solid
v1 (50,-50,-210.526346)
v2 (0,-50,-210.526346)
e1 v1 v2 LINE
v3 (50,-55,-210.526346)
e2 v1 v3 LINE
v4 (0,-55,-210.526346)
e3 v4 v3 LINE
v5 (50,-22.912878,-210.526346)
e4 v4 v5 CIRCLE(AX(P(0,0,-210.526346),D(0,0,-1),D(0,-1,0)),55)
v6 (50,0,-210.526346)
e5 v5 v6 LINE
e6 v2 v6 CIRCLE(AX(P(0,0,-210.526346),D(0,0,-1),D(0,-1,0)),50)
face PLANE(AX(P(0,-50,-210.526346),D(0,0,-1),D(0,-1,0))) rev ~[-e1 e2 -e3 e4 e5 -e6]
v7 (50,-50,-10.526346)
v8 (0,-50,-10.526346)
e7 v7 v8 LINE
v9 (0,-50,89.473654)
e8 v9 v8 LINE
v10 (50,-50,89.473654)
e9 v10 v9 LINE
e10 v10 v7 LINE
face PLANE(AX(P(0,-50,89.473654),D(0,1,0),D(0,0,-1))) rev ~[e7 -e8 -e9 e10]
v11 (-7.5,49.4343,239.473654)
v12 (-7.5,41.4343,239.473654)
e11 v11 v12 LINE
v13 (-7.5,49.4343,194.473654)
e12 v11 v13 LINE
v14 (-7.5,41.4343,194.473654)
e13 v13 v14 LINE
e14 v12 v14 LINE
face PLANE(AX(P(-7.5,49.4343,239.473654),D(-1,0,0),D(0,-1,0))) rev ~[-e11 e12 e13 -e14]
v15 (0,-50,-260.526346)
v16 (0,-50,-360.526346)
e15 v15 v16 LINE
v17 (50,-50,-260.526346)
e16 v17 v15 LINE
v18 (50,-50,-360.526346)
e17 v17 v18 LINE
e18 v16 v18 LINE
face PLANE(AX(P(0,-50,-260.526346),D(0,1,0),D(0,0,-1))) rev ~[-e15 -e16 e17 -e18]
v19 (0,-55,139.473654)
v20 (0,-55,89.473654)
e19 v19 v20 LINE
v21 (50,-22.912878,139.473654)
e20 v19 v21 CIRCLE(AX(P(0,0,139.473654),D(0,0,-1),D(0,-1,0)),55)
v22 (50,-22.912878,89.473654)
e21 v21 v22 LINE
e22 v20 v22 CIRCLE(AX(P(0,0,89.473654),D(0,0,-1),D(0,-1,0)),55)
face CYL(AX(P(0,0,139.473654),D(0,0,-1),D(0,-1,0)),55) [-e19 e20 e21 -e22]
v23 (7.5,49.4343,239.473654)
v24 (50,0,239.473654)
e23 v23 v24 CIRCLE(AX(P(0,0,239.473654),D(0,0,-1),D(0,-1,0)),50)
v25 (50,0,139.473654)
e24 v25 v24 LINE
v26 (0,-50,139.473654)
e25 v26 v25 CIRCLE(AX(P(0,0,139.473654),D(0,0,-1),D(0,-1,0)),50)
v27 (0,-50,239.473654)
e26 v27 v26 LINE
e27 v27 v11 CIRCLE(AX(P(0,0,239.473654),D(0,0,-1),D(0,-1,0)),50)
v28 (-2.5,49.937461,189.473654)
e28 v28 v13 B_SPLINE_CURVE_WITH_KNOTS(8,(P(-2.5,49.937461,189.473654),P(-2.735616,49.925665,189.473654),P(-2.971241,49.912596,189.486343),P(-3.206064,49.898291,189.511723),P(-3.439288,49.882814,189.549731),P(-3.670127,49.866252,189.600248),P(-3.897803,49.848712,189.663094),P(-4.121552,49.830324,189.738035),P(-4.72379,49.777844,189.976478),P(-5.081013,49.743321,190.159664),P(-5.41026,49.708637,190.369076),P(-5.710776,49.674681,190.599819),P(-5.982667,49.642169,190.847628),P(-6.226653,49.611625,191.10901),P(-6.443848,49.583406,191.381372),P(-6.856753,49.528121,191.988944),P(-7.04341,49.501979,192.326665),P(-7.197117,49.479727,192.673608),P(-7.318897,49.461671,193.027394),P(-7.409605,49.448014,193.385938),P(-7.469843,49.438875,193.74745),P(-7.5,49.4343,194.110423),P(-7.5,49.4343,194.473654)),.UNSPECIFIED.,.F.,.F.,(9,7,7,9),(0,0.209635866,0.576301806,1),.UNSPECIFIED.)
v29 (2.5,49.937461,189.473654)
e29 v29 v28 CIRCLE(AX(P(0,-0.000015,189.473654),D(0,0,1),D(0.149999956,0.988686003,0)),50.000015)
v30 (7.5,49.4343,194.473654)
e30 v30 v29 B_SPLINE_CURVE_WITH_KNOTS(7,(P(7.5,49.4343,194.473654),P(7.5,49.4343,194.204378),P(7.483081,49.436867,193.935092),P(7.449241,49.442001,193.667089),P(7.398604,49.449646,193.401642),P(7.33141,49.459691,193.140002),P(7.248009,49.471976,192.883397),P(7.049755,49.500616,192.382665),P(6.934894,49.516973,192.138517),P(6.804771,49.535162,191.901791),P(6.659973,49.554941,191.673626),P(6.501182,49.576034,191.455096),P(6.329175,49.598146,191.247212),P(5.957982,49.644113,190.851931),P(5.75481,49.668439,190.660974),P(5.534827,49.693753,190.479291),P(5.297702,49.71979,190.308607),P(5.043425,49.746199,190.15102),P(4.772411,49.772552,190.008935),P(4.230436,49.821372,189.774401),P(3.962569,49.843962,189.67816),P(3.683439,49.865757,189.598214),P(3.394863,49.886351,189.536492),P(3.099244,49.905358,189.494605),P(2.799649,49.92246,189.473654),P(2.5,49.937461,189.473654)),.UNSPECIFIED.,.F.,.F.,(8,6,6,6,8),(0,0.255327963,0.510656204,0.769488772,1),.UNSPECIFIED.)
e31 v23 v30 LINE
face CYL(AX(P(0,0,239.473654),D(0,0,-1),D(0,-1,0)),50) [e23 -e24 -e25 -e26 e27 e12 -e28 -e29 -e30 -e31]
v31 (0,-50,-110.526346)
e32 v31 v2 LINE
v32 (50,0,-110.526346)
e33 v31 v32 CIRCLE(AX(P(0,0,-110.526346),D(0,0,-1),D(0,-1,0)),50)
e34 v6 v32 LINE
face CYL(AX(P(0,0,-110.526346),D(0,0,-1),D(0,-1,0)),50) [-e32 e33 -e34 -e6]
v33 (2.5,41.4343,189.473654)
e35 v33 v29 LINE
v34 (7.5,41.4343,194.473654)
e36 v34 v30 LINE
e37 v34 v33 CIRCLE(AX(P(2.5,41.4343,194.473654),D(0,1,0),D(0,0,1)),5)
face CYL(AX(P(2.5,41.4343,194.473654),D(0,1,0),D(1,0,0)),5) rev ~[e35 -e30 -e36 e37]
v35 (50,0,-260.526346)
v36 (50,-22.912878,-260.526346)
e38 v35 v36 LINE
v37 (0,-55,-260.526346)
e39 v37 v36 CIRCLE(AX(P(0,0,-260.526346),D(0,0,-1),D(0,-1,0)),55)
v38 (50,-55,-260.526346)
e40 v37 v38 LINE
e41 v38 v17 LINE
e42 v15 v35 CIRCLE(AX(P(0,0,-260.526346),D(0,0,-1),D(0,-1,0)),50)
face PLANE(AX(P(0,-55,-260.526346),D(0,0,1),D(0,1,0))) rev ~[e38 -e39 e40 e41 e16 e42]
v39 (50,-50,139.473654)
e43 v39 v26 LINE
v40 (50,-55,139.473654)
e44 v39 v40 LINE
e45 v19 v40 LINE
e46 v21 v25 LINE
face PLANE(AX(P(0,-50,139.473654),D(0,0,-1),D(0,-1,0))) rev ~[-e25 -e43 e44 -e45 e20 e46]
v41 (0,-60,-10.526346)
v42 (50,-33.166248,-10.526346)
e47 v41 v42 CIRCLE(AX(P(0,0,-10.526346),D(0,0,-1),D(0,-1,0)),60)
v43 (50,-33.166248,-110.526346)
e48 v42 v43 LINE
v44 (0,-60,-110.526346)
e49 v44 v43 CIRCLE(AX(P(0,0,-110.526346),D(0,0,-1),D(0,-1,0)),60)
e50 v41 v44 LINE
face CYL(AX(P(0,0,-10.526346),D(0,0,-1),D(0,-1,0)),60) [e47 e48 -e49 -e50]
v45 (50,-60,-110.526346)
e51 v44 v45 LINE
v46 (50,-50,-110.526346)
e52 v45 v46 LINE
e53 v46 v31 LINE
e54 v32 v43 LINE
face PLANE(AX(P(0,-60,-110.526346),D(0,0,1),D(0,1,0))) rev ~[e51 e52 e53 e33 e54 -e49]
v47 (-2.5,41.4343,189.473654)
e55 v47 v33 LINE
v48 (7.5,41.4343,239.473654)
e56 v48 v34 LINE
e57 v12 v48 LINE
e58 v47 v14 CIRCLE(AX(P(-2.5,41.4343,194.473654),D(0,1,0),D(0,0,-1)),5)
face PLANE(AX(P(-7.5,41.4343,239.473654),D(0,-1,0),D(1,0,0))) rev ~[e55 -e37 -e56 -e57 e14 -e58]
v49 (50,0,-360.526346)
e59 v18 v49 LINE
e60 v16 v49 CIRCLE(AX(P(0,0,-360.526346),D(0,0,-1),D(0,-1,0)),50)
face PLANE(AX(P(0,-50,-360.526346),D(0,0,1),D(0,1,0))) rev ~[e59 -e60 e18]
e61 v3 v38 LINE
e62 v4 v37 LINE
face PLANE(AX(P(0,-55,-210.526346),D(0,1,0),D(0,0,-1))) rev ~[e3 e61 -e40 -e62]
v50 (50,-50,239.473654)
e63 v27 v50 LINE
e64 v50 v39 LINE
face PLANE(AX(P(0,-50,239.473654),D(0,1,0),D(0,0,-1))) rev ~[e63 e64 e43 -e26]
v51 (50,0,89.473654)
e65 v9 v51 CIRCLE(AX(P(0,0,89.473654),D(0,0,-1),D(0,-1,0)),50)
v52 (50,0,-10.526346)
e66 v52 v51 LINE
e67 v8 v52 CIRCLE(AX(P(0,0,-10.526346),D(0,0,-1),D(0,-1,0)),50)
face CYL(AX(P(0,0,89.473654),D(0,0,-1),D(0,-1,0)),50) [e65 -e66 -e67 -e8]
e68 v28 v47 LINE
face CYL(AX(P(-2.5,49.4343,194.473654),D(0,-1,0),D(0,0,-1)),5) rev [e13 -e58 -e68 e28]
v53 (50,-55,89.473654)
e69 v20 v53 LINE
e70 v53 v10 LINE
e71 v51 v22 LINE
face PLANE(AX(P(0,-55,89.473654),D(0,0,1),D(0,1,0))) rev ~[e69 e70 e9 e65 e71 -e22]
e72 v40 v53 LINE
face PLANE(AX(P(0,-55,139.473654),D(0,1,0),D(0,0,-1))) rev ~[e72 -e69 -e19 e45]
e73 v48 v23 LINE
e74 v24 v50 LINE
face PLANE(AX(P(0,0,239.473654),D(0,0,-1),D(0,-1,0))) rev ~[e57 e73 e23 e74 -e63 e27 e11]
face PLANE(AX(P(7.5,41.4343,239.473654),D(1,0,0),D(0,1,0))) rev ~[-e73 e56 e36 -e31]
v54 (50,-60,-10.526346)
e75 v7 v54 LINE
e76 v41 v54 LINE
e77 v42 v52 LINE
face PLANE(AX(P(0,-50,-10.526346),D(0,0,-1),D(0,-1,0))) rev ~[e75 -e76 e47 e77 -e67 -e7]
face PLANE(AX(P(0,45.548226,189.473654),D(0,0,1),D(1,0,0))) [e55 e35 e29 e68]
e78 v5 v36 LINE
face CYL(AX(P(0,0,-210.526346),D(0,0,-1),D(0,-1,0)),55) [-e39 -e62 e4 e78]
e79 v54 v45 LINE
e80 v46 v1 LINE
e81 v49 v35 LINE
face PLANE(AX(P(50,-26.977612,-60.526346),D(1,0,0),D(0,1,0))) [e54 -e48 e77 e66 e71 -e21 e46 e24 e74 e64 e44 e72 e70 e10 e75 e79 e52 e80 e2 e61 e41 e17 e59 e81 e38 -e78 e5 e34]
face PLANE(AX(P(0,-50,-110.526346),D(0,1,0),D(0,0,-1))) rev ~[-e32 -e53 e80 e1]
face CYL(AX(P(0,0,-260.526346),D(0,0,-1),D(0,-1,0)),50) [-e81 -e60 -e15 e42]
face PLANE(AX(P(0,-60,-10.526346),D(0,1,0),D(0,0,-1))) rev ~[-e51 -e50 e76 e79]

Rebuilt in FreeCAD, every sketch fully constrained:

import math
import FreeCAD as App
import Part
import Sketcher
from FreeCAD import Vector


def edges_at(feature, points):
    """Names of the edges that pass closest to the given points."""
    edges = feature.Shape.Edges
    near = lambda p: min(range(len(edges)), key=lambda i: edges[i].distToShape(Part.Vertex(*p))[0])
    return sorted({f"Edge{near(p) + 1}" for p in points})

doc = App.newDocument("Part")
body = doc.addObject("PartDesign::Body", "Body")

sketch1 = body.newObject("Sketcher::SketchObject", "Sketch")
sketch1.AttachmentSupport = (doc.getObject("YZ_Plane"), [""])
sketch1.MapMode = "FlatFace"
sketch1.addGeometry(Part.LineSegment(Vector(-50, -361, 0), Vector(0, -361, 0)), False)
sketch1.addGeometry(Part.LineSegment(Vector(0, -361, 0), Vector(0, 239, 0)), False)
sketch1.addGeometry(Part.LineSegment(Vector(0, 239, 0), Vector(-50, 239, 0)), False)
sketch1.addGeometry(Part.LineSegment(Vector(-50, 239, 0), Vector(-50, 139, 0)), False)
sketch1.addGeometry(Part.LineSegment(Vector(-50, 139, 0), Vector(-55, 139, 0)), False)
sketch1.addGeometry(Part.LineSegment(Vector(-55, 139, 0), Vector(-55, 89, 0)), False)
sketch1.addGeometry(Part.LineSegment(Vector(-55, 89, 0), Vector(-50, 89, 0)), False)
sketch1.addGeometry(Part.LineSegment(Vector(-50, 89, 0), Vector(-50, -11, 0)), False)
sketch1.addGeometry(Part.LineSegment(Vector(-50, -11, 0), Vector(-60, -11, 0)), False)
sketch1.addGeometry(Part.LineSegment(Vector(-60, -11, 0), Vector(-60, -111, 0)), False)
sketch1.addGeometry(Part.LineSegment(Vector(-60, -111, 0), Vector(-50, -111, 0)), False)
sketch1.addGeometry(Part.LineSegment(Vector(-50, -111, 0), Vector(-50, -211, 0)), False)
sketch1.addGeometry(Part.LineSegment(Vector(-50, -211, 0), Vector(-55, -211, 0)), False)
sketch1.addGeometry(Part.LineSegment(Vector(-55, -211, 0), Vector(-55, -261, 0)), False)
sketch1.addGeometry(Part.LineSegment(Vector(-55, -261, 0), Vector(-50, -261, 0)), False)
sketch1.addGeometry(Part.LineSegment(Vector(-50, -261, 0), Vector(-50, -361, 0)), False)
sketch1.addConstraint(Sketcher.Constraint("Coincident", 0, 2, 1, 1))
sketch1.addConstraint(Sketcher.Constraint("Coincident", 1, 2, 2, 1))
sketch1.addConstraint(Sketcher.Constraint("Coincident", 2, 2, 3, 1))
sketch1.addConstraint(Sketcher.Constraint("Coincident", 3, 2, 4, 1))
sketch1.addConstraint(Sketcher.Constraint("Coincident", 4, 2, 5, 1))
sketch1.addConstraint(Sketcher.Constraint("Coincident", 5, 2, 6, 1))
sketch1.addConstraint(Sketcher.Constraint("Coincident", 6, 2, 7, 1))
sketch1.addConstraint(Sketcher.Constraint("Coincident", 7, 2, 8, 1))
sketch1.addConstraint(Sketcher.Constraint("Coincident", 8, 2, 9, 1))
sketch1.addConstraint(Sketcher.Constraint("Coincident", 9, 2, 10, 1))
sketch1.addConstraint(Sketcher.Constraint("Coincident", 10, 2, 11, 1))
sketch1.addConstraint(Sketcher.Constraint("Coincident", 11, 2, 12, 1))
sketch1.addConstraint(Sketcher.Constraint("Coincident", 12, 2, 13, 1))
sketch1.addConstraint(Sketcher.Constraint("Coincident", 13, 2, 14, 1))
sketch1.addConstraint(Sketcher.Constraint("Coincident", 14, 2, 15, 1))
sketch1.addConstraint(Sketcher.Constraint("Coincident", 15, 2, 0, 1))
sketch1.addConstraint(Sketcher.Constraint("Horizontal", 0))
sketch1.addConstraint(Sketcher.Constraint("Vertical", 1))
sketch1.addConstraint(Sketcher.Constraint("Horizontal", 2))
sketch1.addConstraint(Sketcher.Constraint("Vertical", 3))
sketch1.addConstraint(Sketcher.Constraint("Horizontal", 4))
sketch1.addConstraint(Sketcher.Constraint("Vertical", 5))
sketch1.addConstraint(Sketcher.Constraint("Horizontal", 6))
sketch1.addConstraint(Sketcher.Constraint("Vertical", 7))
sketch1.addConstraint(Sketcher.Constraint("Horizontal", 8))
sketch1.addConstraint(Sketcher.Constraint("Vertical", 9))
sketch1.addConstraint(Sketcher.Constraint("Horizontal", 10))
sketch1.addConstraint(Sketcher.Constraint("Vertical", 11))
sketch1.addConstraint(Sketcher.Constraint("Horizontal", 12))
sketch1.addConstraint(Sketcher.Constraint("Vertical", 13))
sketch1.addConstraint(Sketcher.Constraint("Horizontal", 14))
sketch1.addConstraint(Sketcher.Constraint("Vertical", 15))
sketch1.addConstraint(Sketcher.Constraint("PointOnObject", 0, 2, -2))
sketch1.addConstraint(Sketcher.Constraint("Vertical", 3, 2, 6, 2))
sketch1.addConstraint(Sketcher.Constraint("Vertical", 7, 2, 10, 2))
sketch1.addConstraint(Sketcher.Constraint("Vertical", 5, 2, 12, 2))
sketch1.addConstraint(Sketcher.Constraint("Vertical", 11, 2, 14, 2))
sketch1.addConstraint(Sketcher.Constraint("Equal", 2, 5))
sketch1.addConstraint(Sketcher.Constraint("Equal", 3, 7))
sketch1.addConstraint(Sketcher.Constraint("Equal", 7, 9))
sketch1.addConstraint(Sketcher.Constraint("Equal", 9, 11))
sketch1.addConstraint(Sketcher.Constraint("Equal", 5, 13))
sketch1.addConstraint(Sketcher.Constraint("Equal", 11, 15))
sketch1.addConstraint(Sketcher.Constraint("DistanceX", 0, 1, 0, 2, 50.0))
sketch1.addConstraint(Sketcher.Constraint("DistanceX", 4, 2, 4, 1, 5.0))
sketch1.addConstraint(Sketcher.Constraint("DistanceX", 8, 2, 8, 1, 10.0))
sketch1.addConstraint(Sketcher.Constraint("DistanceY", 1, 1, 1, 2, 600.0))
sketch1.addConstraint(Sketcher.Constraint("DistanceY", 0, 2, -1, 1, 360.526346))
revolution = body.newObject("PartDesign::Revolution", "Revolution")
revolution.Profile = sketch1
revolution.ReferenceAxis = (sketch1, ["V_Axis"])
revolution.Angle = 360

sketch2 = body.newObject("Sketcher::SketchObject", "Sketch001")
sketch2.AttachmentSupport = (doc.getObject("XY_Plane"), [""])
sketch2.MapMode = "FlatFace"
sketch2.AttachmentOffset = App.Placement(Vector(0, 0, 239.473654), App.Rotation())
sketch2.addGeometry(Part.LineSegment(Vector(8, 41, 0), Vector(8, 49, 0)), False)
sketch2.addGeometry(Part.ArcOfCircle(Part.Circle(Vector(0, 0, 0), Vector(0, 0, 1), 50), math.radians(81.37), math.radians(98.63)), False)
sketch2.addGeometry(Part.LineSegment(Vector(-8, 49, 0), Vector(-8, 41, 0)), False)
sketch2.addGeometry(Part.LineSegment(Vector(-8, 41, 0), Vector(8, 41, 0)), False)
sketch2.addConstraint(Sketcher.Constraint("Coincident", 0, 2, 1, 1))
sketch2.addConstraint(Sketcher.Constraint("Coincident", 1, 2, 2, 1))
sketch2.addConstraint(Sketcher.Constraint("Coincident", 2, 2, 3, 1))
sketch2.addConstraint(Sketcher.Constraint("Coincident", 3, 2, 0, 1))
sketch2.addConstraint(Sketcher.Constraint("Vertical", 0))
sketch2.addConstraint(Sketcher.Constraint("Vertical", 2))
sketch2.addConstraint(Sketcher.Constraint("Horizontal", 3))
sketch2.addConstraint(Sketcher.Constraint("Symmetric", 0, 2, 1, 2, -2))
sketch2.addConstraint(Sketcher.Constraint("DistanceX", 3, 1, 3, 2, 15.0))
sketch2.addConstraint(Sketcher.Constraint("DistanceY", 0, 1, 0, 2, 8.0))
sketch2.addConstraint(Sketcher.Constraint("Radius", 1, 50.000015))
sketch2.addConstraint(Sketcher.Constraint("DistanceY", -1, 1, 0, 2, 49.4343))
pocket1 = body.newObject("PartDesign::Pocket", "Pocket")
pocket1.Profile = sketch2
pocket1.Length = 50
doc.recompute()

fillet = body.newObject("PartDesign::Fillet", "Fillet")
fillet.Base = (pocket1, edges_at(pocket1, [(-7.5, 45.434, 189.474), (7.5, 45.434, 189.474)]))
fillet.Radius = 5

sketch3 = body.newObject("Sketcher::SketchObject", "Sketch002")
sketch3.AttachmentSupport = (doc.getObject("YZ_Plane"), [""])
sketch3.MapMode = "FlatFace"
sketch3.addGeometry(Part.LineSegment(Vector(-50, -361, 0), Vector(0, -361, 0)), False)
sketch3.addGeometry(Part.LineSegment(Vector(0, -361, 0), Vector(0, 239, 0)), False)
sketch3.addGeometry(Part.LineSegment(Vector(0, 239, 0), Vector(-50, 239, 0)), False)
sketch3.addGeometry(Part.LineSegment(Vector(-50, 239, 0), Vector(-50, 139, 0)), False)
sketch3.addGeometry(Part.LineSegment(Vector(-50, 139, 0), Vector(-55, 139, 0)), False)
sketch3.addGeometry(Part.LineSegment(Vector(-55, 139, 0), Vector(-55, 89, 0)), False)
sketch3.addGeometry(Part.LineSegment(Vector(-55, 89, 0), Vector(-50, 89, 0)), False)
sketch3.addGeometry(Part.LineSegment(Vector(-50, 89, 0), Vector(-50, -11, 0)), False)
sketch3.addGeometry(Part.LineSegment(Vector(-50, -11, 0), Vector(-60, -11, 0)), False)
sketch3.addGeometry(Part.LineSegment(Vector(-60, -11, 0), Vector(-60, -111, 0)), False)
sketch3.addGeometry(Part.LineSegment(Vector(-60, -111, 0), Vector(-50, -111, 0)), False)
sketch3.addGeometry(Part.LineSegment(Vector(-50, -111, 0), Vector(-50, -211, 0)), False)
sketch3.addGeometry(Part.LineSegment(Vector(-50, -211, 0), Vector(-55, -211, 0)), False)
sketch3.addGeometry(Part.LineSegment(Vector(-55, -211, 0), Vector(-55, -261, 0)), False)
sketch3.addGeometry(Part.LineSegment(Vector(-55, -261, 0), Vector(-50, -261, 0)), False)
sketch3.addGeometry(Part.LineSegment(Vector(-50, -261, 0), Vector(-50, -361, 0)), False)
sketch3.addConstraint(Sketcher.Constraint("Coincident", 0, 2, 1, 1))
sketch3.addConstraint(Sketcher.Constraint("Coincident", 1, 2, 2, 1))
sketch3.addConstraint(Sketcher.Constraint("Coincident", 2, 2, 3, 1))
sketch3.addConstraint(Sketcher.Constraint("Coincident", 3, 2, 4, 1))
sketch3.addConstraint(Sketcher.Constraint("Coincident", 4, 2, 5, 1))
sketch3.addConstraint(Sketcher.Constraint("Coincident", 5, 2, 6, 1))
sketch3.addConstraint(Sketcher.Constraint("Coincident", 6, 2, 7, 1))
sketch3.addConstraint(Sketcher.Constraint("Coincident", 7, 2, 8, 1))
sketch3.addConstraint(Sketcher.Constraint("Coincident", 8, 2, 9, 1))
sketch3.addConstraint(Sketcher.Constraint("Coincident", 9, 2, 10, 1))
sketch3.addConstraint(Sketcher.Constraint("Coincident", 10, 2, 11, 1))
sketch3.addConstraint(Sketcher.Constraint("Coincident", 11, 2, 12, 1))
sketch3.addConstraint(Sketcher.Constraint("Coincident", 12, 2, 13, 1))
sketch3.addConstraint(Sketcher.Constraint("Coincident", 13, 2, 14, 1))
sketch3.addConstraint(Sketcher.Constraint("Coincident", 14, 2, 15, 1))
sketch3.addConstraint(Sketcher.Constraint("Coincident", 15, 2, 0, 1))
sketch3.addConstraint(Sketcher.Constraint("Horizontal", 0))
sketch3.addConstraint(Sketcher.Constraint("Vertical", 1))
sketch3.addConstraint(Sketcher.Constraint("Horizontal", 2))
sketch3.addConstraint(Sketcher.Constraint("Vertical", 3))
sketch3.addConstraint(Sketcher.Constraint("Horizontal", 4))
sketch3.addConstraint(Sketcher.Constraint("Vertical", 5))
sketch3.addConstraint(Sketcher.Constraint("Horizontal", 6))
sketch3.addConstraint(Sketcher.Constraint("Vertical", 7))
sketch3.addConstraint(Sketcher.Constraint("Horizontal", 8))
sketch3.addConstraint(Sketcher.Constraint("Vertical", 9))
sketch3.addConstraint(Sketcher.Constraint("Horizontal", 10))
sketch3.addConstraint(Sketcher.Constraint("Vertical", 11))
sketch3.addConstraint(Sketcher.Constraint("Horizontal", 12))
sketch3.addConstraint(Sketcher.Constraint("Vertical", 13))
sketch3.addConstraint(Sketcher.Constraint("Horizontal", 14))
sketch3.addConstraint(Sketcher.Constraint("Vertical", 15))
sketch3.addConstraint(Sketcher.Constraint("PointOnObject", 0, 2, -2))
sketch3.addConstraint(Sketcher.Constraint("Vertical", 3, 2, 6, 2))
sketch3.addConstraint(Sketcher.Constraint("Vertical", 7, 2, 10, 2))
sketch3.addConstraint(Sketcher.Constraint("Vertical", 5, 2, 12, 2))
sketch3.addConstraint(Sketcher.Constraint("Vertical", 11, 2, 14, 2))
sketch3.addConstraint(Sketcher.Constraint("Equal", 2, 5))
sketch3.addConstraint(Sketcher.Constraint("Equal", 3, 7))
sketch3.addConstraint(Sketcher.Constraint("Equal", 7, 9))
sketch3.addConstraint(Sketcher.Constraint("Equal", 9, 11))
sketch3.addConstraint(Sketcher.Constraint("Equal", 5, 13))
sketch3.addConstraint(Sketcher.Constraint("Equal", 11, 15))
sketch3.addConstraint(Sketcher.Constraint("DistanceX", 0, 1, 0, 2, 50.0))
sketch3.addConstraint(Sketcher.Constraint("DistanceX", 4, 2, 4, 1, 5.0))
sketch3.addConstraint(Sketcher.Constraint("DistanceX", 8, 2, 8, 1, 10.0))
sketch3.addConstraint(Sketcher.Constraint("DistanceY", 1, 1, 1, 2, 600.0))
sketch3.addConstraint(Sketcher.Constraint("DistanceY", 0, 2, -1, 1, 360.526346))
pad1 = body.newObject("PartDesign::Pad", "Pad")
pad1.Profile = sketch3
pad1.Length = 50

doc.recompute()
